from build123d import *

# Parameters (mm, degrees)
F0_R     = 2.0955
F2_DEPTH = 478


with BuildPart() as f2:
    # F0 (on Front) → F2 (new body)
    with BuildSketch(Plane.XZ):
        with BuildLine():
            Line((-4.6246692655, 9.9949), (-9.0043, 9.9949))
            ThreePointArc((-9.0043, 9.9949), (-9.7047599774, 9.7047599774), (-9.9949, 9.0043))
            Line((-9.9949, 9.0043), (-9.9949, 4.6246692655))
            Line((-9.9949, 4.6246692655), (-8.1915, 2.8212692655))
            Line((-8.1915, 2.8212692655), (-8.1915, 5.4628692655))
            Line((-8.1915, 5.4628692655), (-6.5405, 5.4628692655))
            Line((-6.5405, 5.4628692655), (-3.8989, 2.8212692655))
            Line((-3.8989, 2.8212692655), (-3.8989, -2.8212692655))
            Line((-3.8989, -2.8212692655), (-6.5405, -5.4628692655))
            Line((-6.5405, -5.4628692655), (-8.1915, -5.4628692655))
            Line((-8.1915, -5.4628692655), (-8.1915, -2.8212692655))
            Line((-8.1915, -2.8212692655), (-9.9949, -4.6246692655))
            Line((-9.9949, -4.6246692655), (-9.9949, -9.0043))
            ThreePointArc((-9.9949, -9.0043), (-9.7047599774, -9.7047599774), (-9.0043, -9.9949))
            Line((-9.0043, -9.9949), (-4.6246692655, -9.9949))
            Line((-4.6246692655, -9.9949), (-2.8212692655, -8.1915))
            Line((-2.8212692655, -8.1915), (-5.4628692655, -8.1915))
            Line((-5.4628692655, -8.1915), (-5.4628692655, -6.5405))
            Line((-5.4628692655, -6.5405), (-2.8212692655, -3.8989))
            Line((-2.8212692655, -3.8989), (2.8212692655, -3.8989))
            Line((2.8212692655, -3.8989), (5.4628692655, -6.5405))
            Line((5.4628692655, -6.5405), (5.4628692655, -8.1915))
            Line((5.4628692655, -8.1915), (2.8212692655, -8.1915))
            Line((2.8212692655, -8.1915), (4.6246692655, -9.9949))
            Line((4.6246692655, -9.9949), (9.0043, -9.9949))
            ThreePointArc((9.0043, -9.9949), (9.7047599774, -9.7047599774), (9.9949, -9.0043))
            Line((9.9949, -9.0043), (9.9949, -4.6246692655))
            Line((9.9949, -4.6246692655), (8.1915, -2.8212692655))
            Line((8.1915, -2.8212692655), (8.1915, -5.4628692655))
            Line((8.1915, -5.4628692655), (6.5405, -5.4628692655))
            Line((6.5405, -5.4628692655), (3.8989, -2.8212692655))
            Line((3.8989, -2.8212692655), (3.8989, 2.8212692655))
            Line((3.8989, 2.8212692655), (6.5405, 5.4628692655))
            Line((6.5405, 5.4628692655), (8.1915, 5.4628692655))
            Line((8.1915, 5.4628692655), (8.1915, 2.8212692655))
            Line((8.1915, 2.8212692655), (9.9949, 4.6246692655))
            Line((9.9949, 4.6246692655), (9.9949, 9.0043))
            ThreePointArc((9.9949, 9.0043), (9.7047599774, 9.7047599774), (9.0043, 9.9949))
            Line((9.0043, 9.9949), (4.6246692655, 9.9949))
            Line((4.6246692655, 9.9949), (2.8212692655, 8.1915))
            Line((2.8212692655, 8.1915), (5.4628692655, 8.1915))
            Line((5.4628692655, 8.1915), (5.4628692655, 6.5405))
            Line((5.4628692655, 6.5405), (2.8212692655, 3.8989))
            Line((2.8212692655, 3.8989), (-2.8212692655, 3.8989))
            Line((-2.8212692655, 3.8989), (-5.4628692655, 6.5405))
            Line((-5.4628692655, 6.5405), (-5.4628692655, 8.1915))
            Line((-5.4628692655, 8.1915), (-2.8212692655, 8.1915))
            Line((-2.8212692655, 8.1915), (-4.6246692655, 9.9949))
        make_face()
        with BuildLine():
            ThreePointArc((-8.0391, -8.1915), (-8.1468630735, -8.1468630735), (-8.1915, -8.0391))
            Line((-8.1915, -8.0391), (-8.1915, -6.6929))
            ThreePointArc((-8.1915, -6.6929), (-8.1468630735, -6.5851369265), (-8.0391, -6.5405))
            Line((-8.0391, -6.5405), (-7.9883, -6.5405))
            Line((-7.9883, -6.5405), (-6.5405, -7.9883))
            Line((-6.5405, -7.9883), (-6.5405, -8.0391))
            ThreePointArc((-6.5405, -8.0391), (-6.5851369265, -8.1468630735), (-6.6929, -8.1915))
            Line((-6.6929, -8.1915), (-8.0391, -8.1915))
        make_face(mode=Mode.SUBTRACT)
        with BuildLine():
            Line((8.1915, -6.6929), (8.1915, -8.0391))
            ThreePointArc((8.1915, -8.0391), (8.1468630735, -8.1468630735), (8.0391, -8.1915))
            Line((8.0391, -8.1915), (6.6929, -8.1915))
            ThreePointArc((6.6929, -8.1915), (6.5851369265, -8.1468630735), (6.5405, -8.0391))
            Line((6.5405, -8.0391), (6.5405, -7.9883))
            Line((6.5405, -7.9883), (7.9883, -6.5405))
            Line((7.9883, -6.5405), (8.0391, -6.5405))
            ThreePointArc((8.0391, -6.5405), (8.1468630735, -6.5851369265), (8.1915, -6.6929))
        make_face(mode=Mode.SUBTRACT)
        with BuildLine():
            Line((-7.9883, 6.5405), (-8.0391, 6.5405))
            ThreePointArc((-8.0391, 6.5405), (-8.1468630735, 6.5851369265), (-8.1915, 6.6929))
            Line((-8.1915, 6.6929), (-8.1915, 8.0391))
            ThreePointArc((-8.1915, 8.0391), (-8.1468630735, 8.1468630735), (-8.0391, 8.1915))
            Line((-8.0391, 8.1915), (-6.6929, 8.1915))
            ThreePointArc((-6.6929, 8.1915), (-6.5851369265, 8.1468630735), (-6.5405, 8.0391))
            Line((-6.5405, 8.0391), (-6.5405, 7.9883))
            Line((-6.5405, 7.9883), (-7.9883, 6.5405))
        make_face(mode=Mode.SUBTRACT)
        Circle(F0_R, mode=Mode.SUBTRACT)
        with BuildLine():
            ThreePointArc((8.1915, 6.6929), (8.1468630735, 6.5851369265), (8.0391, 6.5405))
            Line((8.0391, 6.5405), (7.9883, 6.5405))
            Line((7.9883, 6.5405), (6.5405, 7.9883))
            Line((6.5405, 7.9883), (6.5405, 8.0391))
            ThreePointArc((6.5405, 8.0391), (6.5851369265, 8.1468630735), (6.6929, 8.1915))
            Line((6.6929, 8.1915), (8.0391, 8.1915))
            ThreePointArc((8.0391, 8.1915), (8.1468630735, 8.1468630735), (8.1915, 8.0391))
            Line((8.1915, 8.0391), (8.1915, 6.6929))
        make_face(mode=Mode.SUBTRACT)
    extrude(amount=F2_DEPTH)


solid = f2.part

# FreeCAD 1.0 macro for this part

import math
import FreeCAD as App
import Part
import Sketcher
from FreeCAD import Vector
Q = App.Units.Quantity

doc = App.newDocument("Part")
body = doc.addObject("PartDesign::Body", "Body")

sketch1 = doc.addObject("Sketcher::SketchObject", "Sketch")
body.addObject(sketch1)
sketch1.AttachmentSupport = (doc.XZ_Plane, [""])
sketch1.MapMode = "FlatFace"
sketch1.addGeometry([
    Part.LineSegment(Vector(-4.62, 9.99, 0), Vector(-9, 9.99, 0)),
    Part.ArcOfCircle(Part.Circle(Vector(-9, 9, 0), Vector(0, 0, 1), 0.99), math.radians(90), math.radians(180)),
    Part.LineSegment(Vector(-9.99, 9, 0), Vector(-9.99, 4.62, 0)),
    Part.LineSegment(Vector(-9.99, 4.62, 0), Vector(-8.19, 2.82, 0)),
    Part.LineSegment(Vector(-8.19, 2.82, 0), Vector(-8.19, 5.46, 0)),
    Part.LineSegment(Vector(-8.19, 5.46, 0), Vector(-6.54, 5.46, 0)),
    Part.LineSegment(Vector(-6.54, 5.46, 0), Vector(-3.9, 2.82, 0)),
    Part.LineSegment(Vector(-3.9, 2.82, 0), Vector(-3.9, -2.82, 0)),
    Part.LineSegment(Vector(-3.9, -2.82, 0), Vector(-6.54, -5.46, 0)),
    Part.LineSegment(Vector(-6.54, -5.46, 0), Vector(-8.19, -5.46, 0)),
    Part.LineSegment(Vector(-8.19, -5.46, 0), Vector(-8.19, -2.82, 0)),
    Part.LineSegment(Vector(-8.19, -2.82, 0), Vector(-9.99, -4.62, 0)),
    Part.LineSegment(Vector(-9.99, -4.62, 0), Vector(-9.99, -9, 0)),
    Part.ArcOfCircle(Part.Circle(Vector(-9, -9, 0), Vector(0, 0, 1), 0.99), math.radians(180), math.radians(270)),
    Part.LineSegment(Vector(-9, -9.99, 0), Vector(-4.62, -9.99, 0)),
    Part.LineSegment(Vector(-4.62, -9.99, 0), Vector(-2.82, -8.19, 0)),
    Part.LineSegment(Vector(-2.82, -8.19, 0), Vector(-5.46, -8.19, 0)),
    Part.LineSegment(Vector(-5.46, -8.19, 0), Vector(-5.46, -6.54, 0)),
    Part.LineSegment(Vector(-5.46, -6.54, 0), Vector(-2.82, -3.9, 0)),
    Part.LineSegment(Vector(-2.82, -3.9, 0), Vector(2.82, -3.9, 0)),
    Part.LineSegment(Vector(2.82, -3.9, 0), Vector(5.46, -6.54, 0)),
    Part.LineSegment(Vector(5.46, -6.54, 0), Vector(5.46, -8.19, 0)),
    Part.LineSegment(Vector(5.46, -8.19, 0), Vector(2.82, -8.19, 0)),
    Part.LineSegment(Vector(2.82, -8.19, 0), Vector(4.62, -9.99, 0)),
    Part.LineSegment(Vector(4.62, -9.99, 0), Vector(9, -9.99, 0)),
    Part.ArcOfCircle(Part.Circle(Vector(9, -9, 0), Vector(0, 0, 1), 0.99), math.radians(-90), math.radians(0)),
    Part.LineSegment(Vector(9.99, -9, 0), Vector(9.99, -4.62, 0)),
    Part.LineSegment(Vector(9.99, -4.62, 0), Vector(8.19, -2.82, 0)),
    Part.LineSegment(Vector(8.19, -2.82, 0), Vector(8.19, -5.46, 0)),
    Part.LineSegment(Vector(8.19, -5.46, 0), Vector(6.54, -5.46, 0)),
    Part.LineSegment(Vector(6.54, -5.46, 0), Vector(3.9, -2.82, 0)),
    Part.LineSegment(Vector(3.9, -2.82, 0), Vector(3.9, 2.82, 0)),
    Part.LineSegment(Vector(3.9, 2.82, 0), Vector(6.54, 5.46, 0)),
    Part.LineSegment(Vector(6.54, 5.46, 0), Vector(8.19, 5.46, 0)),
    Part.LineSegment(Vector(8.19, 5.46, 0), Vector(8.19, 2.82, 0)),
    Part.LineSegment(Vector(8.19, 2.82, 0), Vector(9.99, 4.62, 0)),
    Part.LineSegment(Vector(9.99, 4.62, 0), Vector(9.99, 9, 0)),
    Part.ArcOfCircle(Part.Circle(Vector(9, 9, 0), Vector(0, 0, 1), 0.99), math.radians(0), math.radians(90)),
    Part.LineSegment(Vector(9, 9.99, 0), Vector(4.62, 9.99, 0)),
    Part.LineSegment(Vector(4.62, 9.99, 0), Vector(2.82, 8.19, 0)),
    Part.LineSegment(Vector(2.82, 8.19, 0), Vector(5.46, 8.19, 0)),
    Part.LineSegment(Vector(5.46, 8.19, 0), Vector(5.46, 6.54, 0)),
    Part.LineSegment(Vector(5.46, 6.54, 0), Vector(2.82, 3.9, 0)),
    Part.LineSegment(Vector(2.82, 3.9, 0), Vector(-2.82, 3.9, 0)),
    Part.LineSegment(Vector(-2.82, 3.9, 0), Vector(-5.46, 6.54, 0)),
    Part.LineSegment(Vector(-5.46, 6.54, 0), Vector(-5.46, 8.19, 0)),
    Part.LineSegment(Vector(-5.46, 8.19, 0), Vector(-2.82, 8.19, 0)),
    Part.LineSegment(Vector(-2.82, 8.19, 0), Vector(-4.62, 9.99, 0)),
    Part.LineSegment(Vector(-6.69, -8.19, 0), Vector(-8.04, -8.19, 0)),
    Part.ArcOfCircle(Part.Circle(Vector(-8.04, -8.04, 0), Vector(0, 0, 1), 0.15), math.radians(180), math.radians(270)),
    Part.LineSegment(Vector(-8.19, -8.04, 0), Vector(-8.19, -6.69, 0)),
    Part.ArcOfCircle(Part.Circle(Vector(-8.04, -6.69, 0), Vector(0, 0, 1), 0.15), math.radians(90), math.radians(180)),
    Part.LineSegment(Vector(-8.04, -6.54, 0), Vector(-7.99, -6.54, 0)),
    Part.LineSegment(Vector(-7.99, -6.54, 0), Vector(-6.54, -7.99, 0)),
    Part.LineSegment(Vector(-6.54, -7.99, 0), Vector(-6.54, -8.04, 0)),
    Part.ArcOfCircle(Part.Circle(Vector(-6.69, -8.04, 0), Vector(0, 0, 1), 0.15), math.radians(-90), math.radians(0)),
    Part.ArcOfCircle(Part.Circle(Vector(8.04, -6.69, 0), Vector(0, 0, 1), 0.15), math.radians(0), math.radians(90)),
    Part.LineSegment(Vector(8.19, -6.69, 0), Vector(8.19, -8.04, 0)),
    Part.ArcOfCircle(Part.Circle(Vector(8.04, -8.04, 0), Vector(0, 0, 1), 0.15), math.radians(-90), math.radians(0)),
    Part.LineSegment(Vector(8.04, -8.19, 0), Vector(6.69, -8.19, 0)),
    Part.ArcOfCircle(Part.Circle(Vector(6.69, -8.04, 0), Vector(0, 0, 1), 0.15), math.radians(180), math.radians(270)),
    Part.LineSegment(Vector(6.54, -8.04, 0), Vector(6.54, -7.99, 0)),
    Part.LineSegment(Vector(6.54, -7.99, 0), Vector(7.99, -6.54, 0)),
    Part.LineSegment(Vector(7.99, -6.54, 0), Vector(8.04, -6.54, 0)),
    Part.LineSegment(Vector(-6.54, 7.99, 0), Vector(-7.99, 6.54, 0)),
    Part.LineSegment(Vector(-7.99, 6.54, 0), Vector(-8.04, 6.54, 0)),
    Part.ArcOfCircle(Part.Circle(Vector(-8.04, 6.69, 0), Vector(0, 0, 1), 0.15), math.radians(180), math.radians(270)),
    Part.LineSegment(Vector(-8.19, 6.69, 0), Vector(-8.19, 8.04, 0)),
    Part.ArcOfCircle(Part.Circle(Vector(-8.04, 8.04, 0), Vector(0, 0, 1), 0.15), math.radians(90), math.radians(180)),
    Part.LineSegment(Vector(-8.04, 8.19, 0), Vector(-6.69, 8.19, 0)),
    Part.ArcOfCircle(Part.Circle(Vector(-6.69, 8.04, 0), Vector(0, 0, 1), 0.15), math.radians(0), math.radians(90)),
    Part.LineSegment(Vector(-6.54, 8.04, 0), Vector(-6.54, 7.99, 0)),
    Part.Circle(Vector(0, 0, 0), Vector(0, 0, 1), 2.1),
    Part.LineSegment(Vector(8.19, 8.04, 0), Vector(8.19, 6.69, 0)),
    Part.ArcOfCircle(Part.Circle(Vector(8.04, 6.69, 0), Vector(0, 0, 1), 0.15), math.radians(-90), math.radians(0)),
    Part.LineSegment(Vector(8.04, 6.54, 0), Vector(7.99, 6.54, 0)),
    Part.LineSegment(Vector(7.99, 6.54, 0), Vector(6.54, 7.99, 0)),
    Part.LineSegment(Vector(6.54, 7.99, 0), Vector(6.54, 8.04, 0)),
    Part.ArcOfCircle(Part.Circle(Vector(6.69, 8.04, 0), Vector(0, 0, 1), 0.15), math.radians(90), math.radians(180)),
    Part.LineSegment(Vector(6.69, 8.19, 0), Vector(8.04, 8.19, 0)),
    Part.ArcOfCircle(Part.Circle(Vector(8.04, 8.04, 0), Vector(0, 0, 1), 0.15), math.radians(0), math.radians(90)),
], False)
sketch1.addConstraint([
    Sketcher.Constraint("Tangent", 0, 2, 1, 1),
    Sketcher.Constraint("Tangent", 1, 2, 2, 1),
    Sketcher.Constraint("Coincident", 2, 2, 3, 1),
    Sketcher.Constraint("Coincident", 3, 2, 4, 1),
    Sketcher.Constraint("Coincident", 4, 2, 5, 1),
    Sketcher.Constraint("Coincident", 5, 2, 6, 1),
    Sketcher.Constraint("Coincident", 6, 2, 7, 1),
    Sketcher.Constraint("Coincident", 7, 2, 8, 1),
    Sketcher.Constraint("Coincident", 8, 2, 9, 1),
    Sketcher.Constraint("Coincident", 9, 2, 10, 1),
    Sketcher.Constraint("Coincident", 10, 2, 11, 1),
    Sketcher.Constraint("Coincident", 11, 2, 12, 1),
    Sketcher.Constraint("Tangent", 12, 2, 13, 1),
    Sketcher.Constraint("Tangent", 13, 2, 14, 1),
    Sketcher.Constraint("Coincident", 14, 2, 15, 1),
    Sketcher.Constraint("Coincident", 15, 2, 16, 1),
    Sketcher.Constraint("Coincident", 16, 2, 17, 1),
    Sketcher.Constraint("Coincident", 17, 2, 18, 1),
    Sketcher.Constraint("Coincident", 18, 2, 19, 1),
    Sketcher.Constraint("Coincident", 19, 2, 20, 1),
    Sketcher.Constraint("Coincident", 20, 2, 21, 1),
    Sketcher.Constraint("Coincident", 21, 2, 22, 1),
    Sketcher.Constraint("Coincident", 22, 2, 23, 1),
    Sketcher.Constraint("Coincident", 23, 2, 24, 1),
    Sketcher.Constraint("Tangent", 24, 2, 25, 1),
    Sketcher.Constraint("Tangent", 25, 2, 26, 1),
    Sketcher.Constraint("Coincident", 26, 2, 27, 1),
    Sketcher.Constraint("Coincident", 27, 2, 28, 1),
    Sketcher.Constraint("Coincident", 28, 2, 29, 1),
    Sketcher.Constraint("Coincident", 29, 2, 30, 1),
    Sketcher.Constraint("Coincident", 30, 2, 31, 1),
    Sketcher.Constraint("Coincident", 31, 2, 32, 1),
    Sketcher.Constraint("Coincident", 32, 2, 33, 1),
    Sketcher.Constraint("Coincident", 33, 2, 34, 1),
    Sketcher.Constraint("Coincident", 34, 2, 35, 1),
    Sketcher.Constraint("Coincident", 35, 2, 36, 1),
    Sketcher.Constraint("Tangent", 36, 2, 37, 1),
    Sketcher.Constraint("Tangent", 37, 2, 38, 1),
    Sketcher.Constraint("Coincident", 38, 2, 39, 1),
    Sketcher.Constraint("Coincident", 39, 2, 40, 1),
    Sketcher.Constraint("Coincident", 40, 2, 41, 1),
    Sketcher.Constraint("Coincident", 41, 2, 42, 1),
    Sketcher.Constraint("Coincident", 42, 2, 43, 1),
    Sketcher.Constraint("Coincident", 43, 2, 44, 1),
    Sketcher.Constraint("Coincident", 44, 2, 45, 1),
    Sketcher.Constraint("Coincident", 45, 2, 46, 1),
    Sketcher.Constraint("Coincident", 46, 2, 47, 1),
    Sketcher.Constraint("Coincident", 47, 2, 0, 1),
    Sketcher.Constraint("Tangent", 48, 2, 49, 2),
    Sketcher.Constraint("Tangent", 49, 1, 50, 1),
    Sketcher.Constraint("Tangent", 50, 2, 51, 2),
    Sketcher.Constraint("Tangent", 51, 1, 52, 1),
    Sketcher.Constraint("Coincident", 52, 2, 53, 1),
    Sketcher.Constraint("Coincident", 53, 2, 54, 1),
    Sketcher.Constraint("Tangent", 54, 2, 55, 2),
    Sketcher.Constraint("Tangent", 55, 1, 48, 1),
    Sketcher.Constraint("Tangent", 56, 1, 57, 1),
    Sketcher.Constraint("Tangent", 57, 2, 58, 2),
    Sketcher.Constraint("Tangent", 58, 1, 59, 1),
    Sketcher.Constraint("Tangent", 59, 2, 60, 2),
    Sketcher.Constraint("Tangent", 60, 1, 61, 1),
    Sketcher.Constraint("Coincident", 61, 2, 62, 1),
    Sketcher.Constraint("Coincident", 62, 2, 63, 1),
    Sketcher.Constraint("Tangent", 63, 2, 56, 2),
    Sketcher.Constraint("Coincident", 64, 2, 65, 1),
    Sketcher.Constraint("Tangent", 65, 2, 66, 2),
    Sketcher.Constraint("Tangent", 66, 1, 67, 1),
    Sketcher.Constraint("Tangent", 67, 2, 68, 2),
    Sketcher.Constraint("Tangent", 68, 1, 69, 1),
    Sketcher.Constraint("Tangent", 69, 2, 70, 2),
    Sketcher.Constraint("Tangent", 70, 1, 71, 1),
    Sketcher.Constraint("Coincident", 71, 2, 64, 1),
    Sketcher.Constraint("Tangent", 73, 2, 74, 2),
    Sketcher.Constraint("Tangent", 74, 1, 75, 1),
    Sketcher.Constraint("Coincident", 75, 2, 76, 1),
    Sketcher.Constraint("Coincident", 76, 2, 77, 1),
    Sketcher.Constraint("Tangent", 77, 2, 78, 2),
    Sketcher.Constraint("Tangent", 78, 1, 79, 1),
    Sketcher.Constraint("Tangent", 79, 2, 80, 2),
    Sketcher.Constraint("Tangent", 80, 1, 73, 1),
    Sketcher.Constraint("Horizontal", 0),
    Sketcher.Constraint("Vertical", 2),
    Sketcher.Constraint("Vertical", 4),
    Sketcher.Constraint("Horizontal", 5),
    Sketcher.Constraint("Vertical", 7),
    Sketcher.Constraint("Horizontal", 9),
    Sketcher.Constraint("Vertical", 10),
    Sketcher.Constraint("Vertical", 12),
    Sketcher.Constraint("Horizontal", 14),
    Sketcher.Constraint("Horizontal", 16),
    Sketcher.Constraint("Vertical", 17),
    Sketcher.Constraint("Horizontal", 19),
    Sketcher.Constraint("Vertical", 21),
    Sketcher.Constraint("Horizontal", 22),
    Sketcher.Constraint("Horizontal", 24),
    Sketcher.Constraint("Vertical", 26),
    Sketcher.Constraint("Vertical", 28),
    Sketcher.Constraint("Horizontal", 29),
    Sketcher.Constraint("Vertical", 31),
    Sketcher.Constraint("Horizontal", 33),
    Sketcher.Constraint("Vertical", 34),
    Sketcher.Constraint("Vertical", 36),
    Sketcher.Constraint("Horizontal", 38),
    Sketcher.Constraint("Horizontal", 40),
    Sketcher.Constraint("Vertical", 41),
    Sketcher.Constraint("Horizontal", 43),
    Sketcher.Constraint("Vertical", 45),
    Sketcher.Constraint("Horizontal", 46),
    Sketcher.Constraint("Horizontal", 48),
    Sketcher.Constraint("Vertical", 50),
    Sketcher.Constraint("Horizontal", 52),
    Sketcher.Constraint("Vertical", 54),
    Sketcher.Constraint("Vertical", 57),
    Sketcher.Constraint("Horizontal", 59),
    Sketcher.Constraint("Vertical", 61),
    Sketcher.Constraint("Horizontal", 63),
    Sketcher.Constraint("Horizontal", 65),
    Sketcher.Constraint("Vertical", 67),
    Sketcher.Constraint("Horizontal", 69),
    Sketcher.Constraint("Vertical", 71),
    Sketcher.Constraint("Vertical", 73),
    Sketcher.Constraint("Horizontal", 75),
    Sketcher.Constraint("Vertical", 77),
    Sketcher.Constraint("Horizontal", 79),
    Sketcher.Constraint("Coincident", 72, 3, -1, 1),
    Sketcher.Constraint("Equal", 1, 13),
    Sketcher.Constraint("Equal", 13, 25),
    Sketcher.Constraint("Equal", 25, 37),
    Sketcher.Constraint("Equal", 49, 51),
    Sketcher.Constraint("Equal", 51, 55),
    Sketcher.Constraint("Equal", 55, 56),
    Sketcher.Constraint("Equal", 56, 58),
    Sketcher.Constraint("Equal", 58, 60),
    Sketcher.Constraint("Equal", 60, 66),
    Sketcher.Constraint("Equal", 66, 68),
    Sketcher.Constraint("Equal", 68, 70),
    Sketcher.Constraint("Equal", 70, 74),
    Sketcher.Constraint("Equal", 74, 78),
    Sketcher.Constraint("Equal", 78, 80),
    Sketcher.Constraint("Symmetric", 1, 3, 25, 3, -1, 1),
    Sketcher.Constraint("Symmetric", 13, 3, 37, 3, -1, 1),
    Sketcher.Constraint("Symmetric", 56, 3, 66, 3, -1, 1),
    Sketcher.Constraint("Symmetric", 60, 3, 70, 3, -1, 1),
    Sketcher.Constraint("Symmetric", 51, 3, 74, 3, -1, 1),
    Sketcher.Constraint("Symmetric", 55, 3, 78, 3, -1, 1),
    Sketcher.Constraint("Symmetric", 3, 2, 27, 2, -1, 1),
    Sketcher.Constraint("Symmetric", 5, 2, 29, 2, -1, 1),
    Sketcher.Constraint("Symmetric", 6, 2, 30, 2, -1, 1),
    Sketcher.Constraint("Symmetric", 8, 2, 32, 2, -1, 1),
    Sketcher.Constraint("Symmetric", 10, 2, 34, 2, -1, 1),
    Sketcher.Constraint("Symmetric", 15, 2, 39, 2, -1, 1),
    Sketcher.Constraint("Symmetric", 17, 2, 41, 2, -1, 1),
    Sketcher.Constraint("Symmetric", 18, 2, 42, 2, -1, 1),
    Sketcher.Constraint("Symmetric", 20, 2, 44, 2, -1, 1),
    Sketcher.Constraint("Symmetric", 22, 2, 46, 2, -1, 1),
    Sketcher.Constraint("Symmetric", 13, 3, 25, 3, -2),
    Sketcher.Constraint("Symmetric", 51, 3, 56, 3, -2),
    Sketcher.Constraint("Symmetric", 55, 3, 60, 3, -2),
    Sketcher.Constraint("Symmetric", 17, 2, 20, 2, -2),
    Sketcher.Constraint("Symmetric", 15, 2, 22, 2, -2),
    Sketcher.Constraint("Symmetric", 10, 2, 27, 2, -2),
    Sketcher.Constraint("Symmetric", 8, 2, 29, 2, -2),
    Sketcher.Constraint("Parallel", 3, 6),
    Sketcher.Constraint("Perpendicular", 6, 8),
    Sketcher.Constraint("Parallel", 8, 11),
    Sketcher.Constraint("Parallel", 11, 15),
    Sketcher.Constraint("Parallel", 15, 18),
    Sketcher.Constraint("Perpendicular", 18, 20),
    Sketcher.Constraint("Parallel", 20, 23),
    Sketcher.Constraint("Parallel", 23, 27),
    Sketcher.Constraint("Perpendicular", 30, 32),
    Sketcher.Constraint("Parallel", 32, 35),
    Sketcher.Constraint("Parallel", 35, 39),
    Sketcher.Constraint("Perpendicular", 42, 44),
    Sketcher.Constraint("Parallel", 44, 47),
    Sketcher.Constraint("Parallel", 47, 53),
    Sketcher.Constraint("Perpendicular", 53, 62),
    Sketcher.Constraint("Parallel", 62, 64),
    Sketcher.Constraint("Perpendicular", 64, 76),
    Sketcher.Constraint("Horizontal", 3, 2, 6, 2),
    Sketcher.Constraint("Horizontal", 7, 2, 10, 2),
    Sketcher.Constraint("Horizontal", 22, 2, 48, 2),
    Sketcher.Constraint("Horizontal", 20, 2, 51, 1),
    Sketcher.Constraint("Horizontal", 53, 2, 61, 2),
    Sketcher.Constraint("Horizontal", 71, 2, 76, 2),
    Sketcher.Constraint("Vertical", 15, 2, 18, 2),
    Sketcher.Constraint("Vertical", 10, 2, 49, 1),
    Sketcher.Constraint("Vertical", 8, 2, 53, 2),
    Sketcher.Constraint("Vertical", 52, 2, 64, 2),
    Sketcher.Constraint("Equal", 38, 2),
    Sketcher.Constraint("Equal", 46, 4),
    Sketcher.Constraint("Equal", 43, 7),
    Sketcher.Constraint("Equal", 33, 17),
    Sketcher.Constraint("Equal", 11, 15),
    Sketcher.Constraint("Diameter", 72, Q("0.165 in")),
    Sketcher.Constraint("Radius", 1, Q("0.039 in")),
    Sketcher.Constraint("Radius", 49, Q("0.006 in")),
    Sketcher.Constraint("DistanceX", 5, 1, 5, 2, Q("0.065 in")),
    Sketcher.Constraint("DistanceX", 16, 2, 16, 1, Q("0.104 in")),
    Sketcher.Constraint("DistanceX", 52, 1, 52, 2, Q("0.002 in")),
    Sketcher.Constraint("DistanceX", 1, 3, -1, 1, Q("0.3545 in")),
    Sketcher.Constraint("DistanceX", 49, 3, -1, 1, Q("0.3165 in")),
    Sketcher.Constraint("DistanceX", 0, 2, 0, 1, 4.379631),
])
pad1 = doc.addObject("PartDesign::Pad", "Pad")
body.addObject(pad1)
pad1.Profile = sketch1
pad1.Length = 478

doc.recompute()
